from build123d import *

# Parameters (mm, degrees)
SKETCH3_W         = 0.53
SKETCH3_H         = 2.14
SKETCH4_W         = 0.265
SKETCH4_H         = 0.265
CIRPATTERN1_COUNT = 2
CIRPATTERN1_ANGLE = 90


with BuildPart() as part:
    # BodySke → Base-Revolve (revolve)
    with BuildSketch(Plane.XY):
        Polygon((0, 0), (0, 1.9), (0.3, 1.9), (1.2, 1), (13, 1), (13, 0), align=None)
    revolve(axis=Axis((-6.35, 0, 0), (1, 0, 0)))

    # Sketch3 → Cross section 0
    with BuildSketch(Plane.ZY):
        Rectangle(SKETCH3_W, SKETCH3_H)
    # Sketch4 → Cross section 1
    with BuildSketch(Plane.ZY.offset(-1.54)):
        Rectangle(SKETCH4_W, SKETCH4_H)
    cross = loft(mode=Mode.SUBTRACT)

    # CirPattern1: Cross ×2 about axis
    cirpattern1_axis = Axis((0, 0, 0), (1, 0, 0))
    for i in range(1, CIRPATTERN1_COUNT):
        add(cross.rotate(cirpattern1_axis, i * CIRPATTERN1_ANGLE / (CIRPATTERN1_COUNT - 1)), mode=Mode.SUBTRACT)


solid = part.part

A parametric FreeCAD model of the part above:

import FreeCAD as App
import Part
import Sketcher
Q = App.Units.Quantity

doc = App.newDocument("Part")
params = doc.addObject("Spreadsheet::Sheet", "Params")
for row, (alias, value) in enumerate([
    ("sketch1_width", "13 mm"),
    ("sketch1_height", "1 mm"),
    ("sketch1_width2", "11.8 mm"),
    ("sketch1_width3", "0.3 mm"),
    ("revolution_angle", "360 deg"),
    ("sketch2_width", "2.14 mm"),
    ("sketch2_height", "0.53 mm"),
], start=1):
    params.set(f"A{row}", alias)
    params.set(f"B{row}", "=" + value)
    params.setAlias(f"B{row}", alias)

body = doc.addObject("PartDesign::Body", "Body")

# Sketch on XY plane
sketch1 = doc.addObject("Sketcher::SketchObject", "Sketch")
body.addObject(sketch1)
sketch1.AttachmentSupport = (doc.XY_Plane, [""])
sketch1.MapMode = "FlatFace"
sketch1.addGeometry([
    Part.LineSegment(App.Vector(0, 1.9, 0), App.Vector(0, 0, 0)),  # 0
    Part.LineSegment(App.Vector(0, 0, 0), App.Vector(13, 0, 0)),  # 1
    Part.LineSegment(App.Vector(13, 0, 0), App.Vector(13, 1, 0)),  # 2
    Part.LineSegment(App.Vector(13, 1, 0), App.Vector(1.2, 1, 0)),  # 3
    Part.LineSegment(App.Vector(1.2, 1, 0), App.Vector(0.3, 1.9, 0)),  # 4
    Part.LineSegment(App.Vector(0.3, 1.9, 0), App.Vector(0, 1.9, 0)),  # 5
], False)
sketch1.addConstraint([
    Sketcher.Constraint("Coincident", 0, 2, 1, 1),
    Sketcher.Constraint("Coincident", 1, 2, 2, 1),
    Sketcher.Constraint("Coincident", 2, 2, 3, 1),
    Sketcher.Constraint("Coincident", 3, 2, 4, 1),
    Sketcher.Constraint("Coincident", 4, 2, 5, 1),
    Sketcher.Constraint("Coincident", 5, 2, 0, 1),
    Sketcher.Constraint("Vertical", 0),
    Sketcher.Constraint("Horizontal", 1),
    Sketcher.Constraint("Vertical", 2),
    Sketcher.Constraint("Horizontal", 3),
    Sketcher.Constraint("Horizontal", 5),
    Sketcher.Constraint("Coincident", 0, 2, -1, 1),
    Sketcher.Constraint("DistanceX", 1, 1, 1, 2, 13.0),
    Sketcher.Constraint("DistanceY", 2, 1, 2, 2, 1.0),
    Sketcher.Constraint("Angle", 4, Q("135 deg")),
    Sketcher.Constraint("DistanceX", 3, 2, 3, 1, 11.8),
    Sketcher.Constraint("DistanceX", 5, 2, 5, 1, 0.3),
])
sketch1.setExpression("Constraints[12]", "Params.sketch1_width")
sketch1.setExpression("Constraints[13]", "Params.sketch1_height")
sketch1.setExpression("Constraints[15]", "Params.sketch1_width2")
sketch1.setExpression("Constraints[16]", "Params.sketch1_width3")
revolution = doc.addObject("PartDesign::Revolution", "Revolution")
body.addObject(revolution)
revolution.Profile = sketch1
revolution.ReferenceAxis = (sketch1, ["H_Axis"])
revolution.setExpression("Angle", "Params.revolution_angle")

# Sketch on YZ plane
sketch2 = doc.addObject("Sketcher::SketchObject", "Sketch001")
body.addObject(sketch2)
sketch2.AttachmentSupport = (doc.YZ_Plane, [""])
sketch2.MapMode = "FlatFace"
sketch2.addGeometry([
    Part.LineSegment(App.Vector(1.07, -0.265, 0), App.Vector(-1.07, -0.265, 0)),
    Part.LineSegment(App.Vector(-1.07, -0.265, 0), App.Vector(-1.07, 0.265, 0)),
    Part.LineSegment(App.Vector(-1.07, 0.265, 0), App.Vector(1.07, 0.265, 0)),
    Part.LineSegment(App.Vector(1.07, 0.265, 0), App.Vector(1.07, -0.265, 0)),
], False)
sketch2.addConstraint([
    Sketcher.Constraint("Coincident", 0, 2, 1, 1),
    Sketcher.Constraint("Coincident", 1, 2, 2, 1),
    Sketcher.Constraint("Coincident", 2, 2, 3, 1),
    Sketcher.Constraint("Coincident", 3, 2, 0, 1),
    Sketcher.Constraint("Horizontal", 0),
    Sketcher.Constraint("Vertical", 1),
    Sketcher.Constraint("Horizontal", 2),
    Sketcher.Constraint("Vertical", 3),
    Sketcher.Constraint("Symmetric", 0, 2, 2, 2, -1, 1),
    Sketcher.Constraint("DistanceX", 0, 2, 0, 1, 2.14),
    Sketcher.Constraint("DistanceY", 1, 1, 1, 2, 0.53),
])
sketch2.setExpression("Constraints[9]", "Params.sketch2_width")
sketch2.setExpression("Constraints[10]", "Params.sketch2_height")

# Sketch on YZ plane
sketch3 = doc.addObject("Sketcher::SketchObject", "Sketch002")
body.addObject(sketch3)
sketch3.AttachmentSupport = (doc.YZ_Plane, [""])
sketch3.MapMode = "FlatFace"
sketch3.AttachmentOffset = App.Placement(App.Vector(0, 0, 1.54), App.Rotation())
sketch3.addGeometry([
    Part.LineSegment(App.Vector(0.1325, -0.1325, 0), App.Vector(-0.1325, -0.1325, 0)),
    Part.LineSegment(App.Vector(-0.1325, -0.1325, 0), App.Vector(-0.1325, 0.1325, 0)),
    Part.LineSegment(App.Vector(-0.1325, 0.1325, 0), App.Vector(0.1325, 0.1325, 0)),
    Part.LineSegment(App.Vector(0.1325, 0.1325, 0), App.Vector(0.1325, -0.1325, 0)),
], False)
sketch3.addConstraint([
    Sketcher.Constraint("Coincident", 0, 2, 1, 1),
    Sketcher.Constraint("Coincident", 1, 2, 2, 1),
    Sketcher.Constraint("Coincident", 2, 2, 3, 1),
    Sketcher.Constraint("Coincident", 3, 2, 0, 1),
    Sketcher.Constraint("Horizontal", 0),
    Sketcher.Constraint("Vertical", 1),
    Sketcher.Constraint("Horizontal", 2),
    Sketcher.Constraint("Vertical", 3),
    Sketcher.Constraint("Symmetric", 0, 2, 2, 2, -1, 1),
    Sketcher.Constraint("Equal", 2, 1),
    Sketcher.Constraint("DistanceX", 0, 2, 0, 1, 0.265),
])

subtractiveloft = doc.addObject("PartDesign::SubtractiveLoft", "SubtractiveLoft")
body.addObject(subtractiveloft)
subtractiveloft.Profile = sketch2
subtractiveloft.Sections = [sketch3]
doc.recompute()

polarpattern = doc.addObject("PartDesign::PolarPattern", "PolarPattern")
body.addObject(polarpattern)
polarpattern.Originals = [subtractiveloft]
polarpattern.Axis = (doc.X_Axis, [""])
polarpattern.Angle = 90
polarpattern.Occurrences = 2
body.Tip = polarpattern

doc.recompute()
